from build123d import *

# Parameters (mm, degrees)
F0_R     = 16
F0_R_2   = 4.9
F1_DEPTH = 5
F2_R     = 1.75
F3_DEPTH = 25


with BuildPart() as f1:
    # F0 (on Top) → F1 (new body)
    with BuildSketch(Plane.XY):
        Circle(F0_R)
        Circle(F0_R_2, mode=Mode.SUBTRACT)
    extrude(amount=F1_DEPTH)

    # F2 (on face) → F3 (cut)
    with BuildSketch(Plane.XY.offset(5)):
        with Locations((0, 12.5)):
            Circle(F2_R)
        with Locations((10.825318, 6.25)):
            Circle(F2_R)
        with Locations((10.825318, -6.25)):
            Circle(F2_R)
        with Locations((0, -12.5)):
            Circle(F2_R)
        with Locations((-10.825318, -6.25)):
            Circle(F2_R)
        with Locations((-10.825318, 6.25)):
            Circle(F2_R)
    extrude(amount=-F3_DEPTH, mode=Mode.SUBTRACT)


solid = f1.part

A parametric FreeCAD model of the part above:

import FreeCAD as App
import Part
import Sketcher

V = App.Vector
Q = App.Units.Quantity

doc = App.newDocument("Part")
body = doc.addObject("PartDesign::Body", "Body")

sketch1 = doc.addObject("Sketcher::SketchObject", "Sketch")
body.addObject(sketch1)
sketch1.AttachmentSupport = (doc.XY_Plane, [""])
sketch1.MapMode = "FlatFace"
sketch1.addGeometry([
    Part.Circle(V(0, 0, 0), V(0, 0, 1), 16),
    Part.Circle(V(0, 0, 0), V(0, 0, 1), 4.9),
], False)
sketch1.addConstraint([
    Sketcher.Constraint("Coincident", 0, 3, -1, 1),
    Sketcher.Constraint("Coincident", 1, 3, -1, 1),
    Sketcher.Constraint("Diameter", 0, Q("32 mm")),
    Sketcher.Constraint("Diameter", 1, Q("9.8 mm")),
])
pad1 = doc.addObject("PartDesign::Pad", "Pad")
body.addObject(pad1)
pad1.Profile = sketch1
pad1.Length = 5

sketch2 = doc.addObject("Sketcher::SketchObject", "Sketch001")
body.addObject(sketch2)
sketch2.AttachmentSupport = (doc.XY_Plane, [""])
sketch2.MapMode = "FlatFace"
sketch2.AttachmentOffset = App.Placement(V(0, 0, 5), App.Rotation())
sketch2.addGeometry([
    Part.Circle(V(0, 12.5, 0), V(0, 0, 1), 1.8),
    Part.Circle(V(10.8, 6.2, 0), V(0, 0, 1), 1.8),
    Part.Circle(V(10.8, -6.2, 0), V(0, 0, 1), 1.8),
    Part.Circle(V(0, -12.5, 0), V(0, 0, 1), 1.8),
    Part.Circle(V(-10.8, -6.2, 0), V(0, 0, 1), 1.8),
    Part.Circle(V(-10.8, 6.2, 0), V(0, 0, 1), 1.8),
], False)
sketch2.addConstraint([
    Sketcher.Constraint("Equal", 0, 1),
    Sketcher.Constraint("Equal", 1, 2),
    Sketcher.Constraint("Equal", 2, 3),
    Sketcher.Constraint("Equal", 3, 4),
    Sketcher.Constraint("Equal", 4, 5),
    Sketcher.Constraint("Symmetric", 0, 3, 3, 3, -1, 1),
    Sketcher.Constraint("Symmetric", 1, 3, 4, 3, -1, 1),
    Sketcher.Constraint("Symmetric", 2, 3, 5, 3, -1, 1),
    Sketcher.Constraint("Symmetric", 2, 3, 4, 3, -2),
    Sketcher.Constraint("PointOnObject", 0, 3, -2),
    Sketcher.Constraint("Diameter", 0, Q("3.5 mm")),
    Sketcher.Constraint("DistanceY", 3, 3, 0, 3, Q("25 mm")),
    Sketcher.Constraint("DistanceY", 2, 3, 1, 3, Q("12.5 mm")),
    Sketcher.Constraint("DistanceX", -1, 1, 1, 3, Q("10.825318 mm")),
])
pocket1 = doc.addObject("PartDesign::Pocket", "Pocket")
body.addObject(pocket1)
pocket1.Profile = sketch2
pocket1.Length = 25

doc.recompute()
